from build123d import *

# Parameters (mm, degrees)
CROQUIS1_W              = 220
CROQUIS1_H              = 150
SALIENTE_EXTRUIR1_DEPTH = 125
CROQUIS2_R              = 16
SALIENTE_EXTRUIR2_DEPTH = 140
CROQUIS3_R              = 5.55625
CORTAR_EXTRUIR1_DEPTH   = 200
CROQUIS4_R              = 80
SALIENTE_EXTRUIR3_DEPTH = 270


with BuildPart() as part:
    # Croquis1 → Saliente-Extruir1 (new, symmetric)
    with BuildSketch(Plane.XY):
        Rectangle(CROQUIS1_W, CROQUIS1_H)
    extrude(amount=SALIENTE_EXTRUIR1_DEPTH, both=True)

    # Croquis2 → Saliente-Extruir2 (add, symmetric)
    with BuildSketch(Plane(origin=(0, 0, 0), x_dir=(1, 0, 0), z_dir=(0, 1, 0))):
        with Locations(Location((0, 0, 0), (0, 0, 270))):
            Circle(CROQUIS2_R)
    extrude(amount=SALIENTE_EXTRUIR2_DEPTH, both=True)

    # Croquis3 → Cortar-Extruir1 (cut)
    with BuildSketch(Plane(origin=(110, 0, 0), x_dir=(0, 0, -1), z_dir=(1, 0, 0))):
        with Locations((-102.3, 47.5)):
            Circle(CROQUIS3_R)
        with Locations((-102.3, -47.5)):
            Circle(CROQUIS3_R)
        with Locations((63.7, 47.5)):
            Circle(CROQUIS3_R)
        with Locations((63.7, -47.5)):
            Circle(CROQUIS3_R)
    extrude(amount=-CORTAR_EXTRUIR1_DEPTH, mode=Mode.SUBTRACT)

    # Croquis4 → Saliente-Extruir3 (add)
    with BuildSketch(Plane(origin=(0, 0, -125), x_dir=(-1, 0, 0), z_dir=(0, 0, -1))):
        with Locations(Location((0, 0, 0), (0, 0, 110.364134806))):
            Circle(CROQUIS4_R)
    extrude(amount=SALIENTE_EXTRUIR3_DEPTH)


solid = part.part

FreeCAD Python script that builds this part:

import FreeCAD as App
import Part
import Sketcher

V = App.Vector


def add_polygon(sketch, points):
    """Adds a closed chain of lines whose ends are joined by coincident constraints."""
    first, n = sketch.GeometryCount, len(points)
    for a, b in zip(points, points[1:] + points[:1]):
        sketch.addGeometry(Part.LineSegment(App.Vector(*a, 0), App.Vector(*b, 0)), False)
    for i in range(n):
        sketch.addConstraint(Sketcher.Constraint("Coincident", first + i, 2, first + (i + 1) % n, 1))

doc = App.newDocument("Part")
body = doc.addObject("PartDesign::Body", "Body")

sketch1 = body.newObject("Sketcher::SketchObject", "Sketch")
sketch1.AttachmentSupport = (doc.getObject("XY_Plane"), [""])
sketch1.MapMode = "FlatFace"
add_polygon(sketch1, [(-110, 75), (-110, -75), (110, -75), (110, 75)])
sketch1.addConstraint([
    Sketcher.Constraint("Vertical", 0),
    Sketcher.Constraint("Horizontal", 1),
    Sketcher.Constraint("Vertical", 2),
    Sketcher.Constraint("Horizontal", 3),
    Sketcher.Constraint("Symmetric", 0, 2, 2, 2, -1, 1),
    Sketcher.Constraint("DistanceX", 1, 1, 1, 2, 220.0),
    Sketcher.Constraint("DistanceY", 0, 2, 0, 1, 150.0),
])
pad1 = body.newObject("PartDesign::Pad", "Pad")
pad1.Profile = sketch1
pad1.Length = 250
pad1.Midplane = True

sketch2 = body.newObject("Sketcher::SketchObject", "Sketch001")
sketch2.AttachmentSupport = (doc.getObject("XZ_Plane"), [""])
sketch2.MapMode = "FlatFace"
sketch2.addGeometry(Part.Circle(V(0, 0, 0), V(0, 0, 1), 16), False)
sketch2.addConstraint([
    Sketcher.Constraint("Coincident", 0, 3, -1, 1),
    Sketcher.Constraint("Diameter", 0, 32.0),
])
pad2 = body.newObject("PartDesign::Pad", "Pad001")
pad2.Profile = sketch2
pad2.Length = 280
pad2.Midplane = True

sketch3 = body.newObject("Sketcher::SketchObject", "Sketch002")
sketch3.AttachmentSupport = (doc.getObject("YZ_Plane"), [""])
sketch3.MapMode = "FlatFace"
sketch3.AttachmentOffset = App.Placement(V(0, 0, 110), App.Rotation())
sketch3.addGeometry([
    Part.Circle(V(48, 102, 0), V(0, 0, 1), 6),
    Part.Circle(V(-48, 102, 0), V(0, 0, 1), 6),
    Part.Circle(V(48, -64, 0), V(0, 0, 1), 6),
    Part.Circle(V(-48, -64, 0), V(0, 0, 1), 6),
], False)
sketch3.addConstraint([
    Sketcher.Constraint("Equal", 0, 1),
    Sketcher.Constraint("Equal", 1, 2),
    Sketcher.Constraint("Equal", 2, 3),
    Sketcher.Constraint("Symmetric", 0, 3, 1, 3, -2),
    Sketcher.Constraint("Symmetric", 2, 3, 3, 3, -2),
    Sketcher.Constraint("Vertical", 0, 3, 2, 3),
    Sketcher.Constraint("DistanceX", 1, 3, 0, 3, 95.0),
    Sketcher.Constraint("DistanceY", 2, 3, 0, 3, 166.0),
    Sketcher.Constraint("Diameter", 0, 11.1125),
    Sketcher.Constraint("DistanceY", -1, 1, 0, 3, 102.3),
])
pocket1 = body.newObject("PartDesign::Pocket", "Pocket")
pocket1.Profile = sketch3
pocket1.Length = 200

sketch4 = body.newObject("Sketcher::SketchObject", "Sketch003")
sketch4.AttachmentSupport = (doc.getObject("XY_Plane"), [""])
sketch4.MapMode = "FlatFace"
sketch4.AttachmentOffset = App.Placement(V(0, 0, -125), App.Rotation())
sketch4.addGeometry(Part.Circle(V(0, 0, 0), V(0, 0, 1), 80), False)
sketch4.addConstraint([
    Sketcher.Constraint("Coincident", 0, 3, -1, 1),
    Sketcher.Constraint("Diameter", 0, 160.0),
])
pad3 = body.newObject("PartDesign::Pad", "Pad002")
pad3.Profile = sketch4
pad3.Length = 270
pad3.Reversed = True

doc.recompute()
